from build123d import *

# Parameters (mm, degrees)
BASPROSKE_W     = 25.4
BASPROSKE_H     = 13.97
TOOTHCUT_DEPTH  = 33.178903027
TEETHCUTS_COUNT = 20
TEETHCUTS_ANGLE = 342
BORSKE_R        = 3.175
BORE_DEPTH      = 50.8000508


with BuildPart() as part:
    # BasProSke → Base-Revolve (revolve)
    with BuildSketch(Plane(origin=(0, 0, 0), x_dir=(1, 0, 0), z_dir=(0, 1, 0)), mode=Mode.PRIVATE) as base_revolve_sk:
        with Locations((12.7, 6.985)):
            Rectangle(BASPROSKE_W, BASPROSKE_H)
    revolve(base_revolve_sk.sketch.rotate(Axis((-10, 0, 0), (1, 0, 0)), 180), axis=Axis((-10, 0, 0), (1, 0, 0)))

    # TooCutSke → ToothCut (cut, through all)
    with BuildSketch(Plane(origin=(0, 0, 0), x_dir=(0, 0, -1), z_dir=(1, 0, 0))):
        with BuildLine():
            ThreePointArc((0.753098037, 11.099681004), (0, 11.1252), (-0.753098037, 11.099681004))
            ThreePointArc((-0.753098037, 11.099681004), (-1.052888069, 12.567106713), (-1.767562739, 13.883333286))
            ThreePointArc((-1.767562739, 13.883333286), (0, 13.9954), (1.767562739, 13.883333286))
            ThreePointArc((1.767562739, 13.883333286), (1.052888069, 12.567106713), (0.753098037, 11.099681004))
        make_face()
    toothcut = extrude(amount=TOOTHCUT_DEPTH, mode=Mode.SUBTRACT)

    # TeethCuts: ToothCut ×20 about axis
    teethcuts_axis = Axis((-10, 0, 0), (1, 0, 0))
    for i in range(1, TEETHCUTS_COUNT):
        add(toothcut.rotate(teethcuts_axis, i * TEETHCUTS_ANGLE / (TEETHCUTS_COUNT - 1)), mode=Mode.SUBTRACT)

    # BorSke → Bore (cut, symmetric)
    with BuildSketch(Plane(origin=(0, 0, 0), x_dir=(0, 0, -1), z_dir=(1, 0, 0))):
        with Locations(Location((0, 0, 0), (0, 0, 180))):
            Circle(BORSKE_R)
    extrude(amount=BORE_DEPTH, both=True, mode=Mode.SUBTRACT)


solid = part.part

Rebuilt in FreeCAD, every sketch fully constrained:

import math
import FreeCAD as App
import Part
import Sketcher
from FreeCAD import Vector
Q = App.Units.Quantity


def add_polygon(sketch, points):
    """Adds a closed chain of lines whose ends are joined by coincident constraints."""
    first, n = sketch.GeometryCount, len(points)
    for a, b in zip(points, points[1:] + points[:1]):
        sketch.addGeometry(Part.LineSegment(App.Vector(*a, 0), App.Vector(*b, 0)), False)
    for i in range(n):
        sketch.addConstraint(Sketcher.Constraint("Coincident", first + i, 2, first + (i + 1) % n, 1))

doc = App.newDocument("Part")
body = doc.addObject("PartDesign::Body", "Body")

# Sketch on XZ plane
sketch1 = body.newObject("Sketcher::SketchObject", "Sketch")
sketch1.AttachmentSupport = (doc.getObject("XZ_Plane"), [""])
sketch1.MapMode = "FlatFace"
add_polygon(sketch1, [(0, -13.97), (0, 0), (25.4, 0), (25.4, -13.97)])  # lines 0-3
sketch1.addConstraint([
    Sketcher.Constraint("Vertical", 0),
    Sketcher.Constraint("Horizontal", 1),
    Sketcher.Constraint("Vertical", 2),
    Sketcher.Constraint("Horizontal", 3),
    Sketcher.Constraint("Coincident", 0, 2, -1, 1),
    Sketcher.Constraint("DistanceX", 1, 1, 1, 2, Q("1 in")),
    Sketcher.Constraint("DistanceY", 0, 1, 0, 2, Q("0.55 in")),
])
revolution = body.newObject("PartDesign::Revolution", "Revolution")
revolution.Profile = sketch1
revolution.ReferenceAxis = (sketch1, ["H_Axis"])
revolution.Angle = 360

# Sketch on YZ plane
sketch2 = body.newObject("Sketcher::SketchObject", "Sketch001")
sketch2.AttachmentSupport = (doc.getObject("YZ_Plane"), [""])
sketch2.MapMode = "FlatFace"
sketch2.addGeometry([
    Part.ArcOfCircle(Part.Circle(Vector(0, 0, 0), Vector(0, 0, 1), 11.1252), math.radians(-3.881491), math.radians(3.881491)),
    Part.ArcOfCircle(Part.Circle(Vector(10.827679, -5.825811, 0), Vector(0, 0, 1), 5.08), math.radians(53.022114), math.radians(86.930705)),
    Part.ArcOfCircle(Part.Circle(Vector(0, 0, 0), Vector(0, 0, 1), 13.9954), math.radians(-7.255603), math.radians(7.255603)),
    Part.ArcOfCircle(Part.Circle(Vector(10.827679, 5.825811, 0), Vector(0, 0, 1), 5.08), math.radians(-86.930705), math.radians(-53.022114)),
], False)
sketch2.addConstraint([
    Sketcher.Constraint("Coincident", 0, 1, 1, 2),
    Sketcher.Constraint("Coincident", 1, 1, 2, 1),
    Sketcher.Constraint("Coincident", 2, 2, 3, 2),
    Sketcher.Constraint("Coincident", 3, 1, 0, 2),
    Sketcher.Constraint("Coincident", 0, 3, -1, 1),
    Sketcher.Constraint("Coincident", 2, 3, -1, 1),
    Sketcher.Constraint("Equal", 1, 3),
    Sketcher.Constraint("Symmetric", 1, 3, 3, 3, -1),
    Sketcher.Constraint("Radius", 1, Q("0.2 in")),
    Sketcher.Constraint("Radius", 0, Q("0.438 in")),
    Sketcher.Constraint("Radius", 2, Q("0.551 in")),
    Sketcher.Constraint("DistanceY", 0, 1, -1, 1, 0.753098),
    Sketcher.Constraint("DistanceX", 1, 3, 0, 1, 0.272002),
])
pocket1 = body.newObject("PartDesign::Pocket", "Pocket")
pocket1.Profile = sketch2
pocket1.Type = "ThroughAll"
pocket1.Reversed = True
doc.recompute()

polarpattern = body.newObject("PartDesign::PolarPattern", "PolarPattern")
polarpattern.Originals = [pocket1]
polarpattern.Axis = (doc.getObject("X_Axis"), [""])
polarpattern.Angle = 360
polarpattern.Occurrences = 20
body.Tip = polarpattern

# Sketch on YZ plane
sketch3 = body.newObject("Sketcher::SketchObject", "Sketch002")
sketch3.AttachmentSupport = (doc.getObject("YZ_Plane"), [""])
sketch3.MapMode = "FlatFace"
sketch3.addGeometry(Part.Circle(Vector(0, 0, 0), Vector(0, 0, 1), 3.175), False)
sketch3.addConstraint([
    Sketcher.Constraint("Coincident", 0, 3, -1, 1),
    Sketcher.Constraint("Diameter", 0, Q("0.25 in")),
])
pocket2 = body.newObject("PartDesign::Pocket", "Pocket001")
pocket2.Profile = sketch3
pocket2.Length = 101.600102
pocket2.Midplane = True

doc.recompute()
